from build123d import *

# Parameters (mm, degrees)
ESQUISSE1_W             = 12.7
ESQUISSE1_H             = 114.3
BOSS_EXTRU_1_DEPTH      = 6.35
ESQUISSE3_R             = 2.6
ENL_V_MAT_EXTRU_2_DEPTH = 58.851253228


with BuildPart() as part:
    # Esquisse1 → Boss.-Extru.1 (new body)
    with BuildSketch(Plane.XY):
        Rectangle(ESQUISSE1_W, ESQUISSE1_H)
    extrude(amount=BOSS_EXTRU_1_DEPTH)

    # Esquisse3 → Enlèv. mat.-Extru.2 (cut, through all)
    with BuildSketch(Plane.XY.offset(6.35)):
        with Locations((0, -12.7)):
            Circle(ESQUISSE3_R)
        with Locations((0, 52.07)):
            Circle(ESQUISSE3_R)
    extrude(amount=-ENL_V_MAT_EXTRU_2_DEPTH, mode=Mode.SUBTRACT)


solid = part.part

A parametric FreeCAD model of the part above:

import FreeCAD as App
import Part
import Sketcher
Q = App.Units.Quantity


def add_polygon(sketch, points):
    """Adds a closed chain of lines whose ends are joined by coincident constraints."""
    first, n = sketch.GeometryCount, len(points)
    for a, b in zip(points, points[1:] + points[:1]):
        sketch.addGeometry(Part.LineSegment(App.Vector(*a, 0), App.Vector(*b, 0)), False)
    for i in range(n):
        sketch.addConstraint(Sketcher.Constraint("Coincident", first + i, 2, first + (i + 1) % n, 1))

doc = App.newDocument("Part")
params = doc.addObject("Spreadsheet::Sheet", "Params")
for row, (alias, value) in enumerate([
    ("sketch1_width", "0.5 in"),
    ("sketch1_height", "4.5 in"),
    ("pad1_length", "0.25 in"),
], start=1):
    params.set(f"A{row}", alias)
    params.set(f"B{row}", "=" + value)
    params.setAlias(f"B{row}", alias)

body = doc.addObject("PartDesign::Body", "Body")

# Sketch on XY plane
sketch1 = doc.addObject("Sketcher::SketchObject", "Sketch")
body.addObject(sketch1)
sketch1.AttachmentSupport = (doc.XY_Plane, [""])
sketch1.MapMode = "FlatFace"
add_polygon(sketch1, [(-6, 57), (-6, -57), (6, -57), (6, 57)])  # lines 0-3
sketch1.addConstraint(Sketcher.Constraint("Vertical", 0))
sketch1.addConstraint(Sketcher.Constraint("Horizontal", 1))
sketch1.addConstraint(Sketcher.Constraint("Vertical", 2))
sketch1.addConstraint(Sketcher.Constraint("Horizontal", 3))
sketch1.addConstraint(Sketcher.Constraint("Symmetric", 0, 2, 2, 2, -1, 1))
sketch1.addConstraint(Sketcher.Constraint("DistanceX", 1, 1, 1, 2, Q("0.5 in")))
sketch1.addConstraint(Sketcher.Constraint("DistanceY", 0, 2, 0, 1, Q("4.5 in")))
sketch1.setExpression("Constraints[9]", "Params.sketch1_width")
sketch1.setExpression("Constraints[10]", "Params.sketch1_height")
pad1 = doc.addObject("PartDesign::Pad", "Pad")
body.addObject(pad1)
pad1.Profile = sketch1
pad1.setExpression("Length", "Params.pad1_length")

# Sketch on XY plane
sketch2 = doc.addObject("Sketcher::SketchObject", "Sketch001")
body.addObject(sketch2)
sketch2.AttachmentSupport = (doc.XY_Plane, [""])
sketch2.MapMode = "FlatFace"
sketch2.AttachmentOffset = App.Placement(App.Vector(0, 0, 0.25 * 25.4), App.Rotation())
sketch2.addGeometry(Part.Circle(App.Vector(0, -12.7, 0), App.Vector(0, 0, 1), 2.6), False)
sketch2.addGeometry(Part.Circle(App.Vector(0, 52.1, 0), App.Vector(0, 0, 1), 2.6), False)
sketch2.addConstraint(Sketcher.Constraint("Equal", 0, 1))
sketch2.addConstraint(Sketcher.Constraint("PointOnObject", 0, 3, -2))
sketch2.addConstraint(Sketcher.Constraint("PointOnObject", 1, 3, -2))
sketch2.addConstraint(Sketcher.Constraint("DistanceY", 0, 3, -1, 1, Q("0.5 in")))
sketch2.addConstraint(Sketcher.Constraint("Diameter", 0, Q("5.2 mm")))
sketch2.addConstraint(Sketcher.Constraint("DistanceY", -1, 1, 1, 3, Q("2.05 in")))
pocket1 = doc.addObject("PartDesign::Pocket", "Pocket")
body.addObject(pocket1)
pocket1.Profile = sketch2
pocket1.Type = "ThroughAll"

doc.recompute()
